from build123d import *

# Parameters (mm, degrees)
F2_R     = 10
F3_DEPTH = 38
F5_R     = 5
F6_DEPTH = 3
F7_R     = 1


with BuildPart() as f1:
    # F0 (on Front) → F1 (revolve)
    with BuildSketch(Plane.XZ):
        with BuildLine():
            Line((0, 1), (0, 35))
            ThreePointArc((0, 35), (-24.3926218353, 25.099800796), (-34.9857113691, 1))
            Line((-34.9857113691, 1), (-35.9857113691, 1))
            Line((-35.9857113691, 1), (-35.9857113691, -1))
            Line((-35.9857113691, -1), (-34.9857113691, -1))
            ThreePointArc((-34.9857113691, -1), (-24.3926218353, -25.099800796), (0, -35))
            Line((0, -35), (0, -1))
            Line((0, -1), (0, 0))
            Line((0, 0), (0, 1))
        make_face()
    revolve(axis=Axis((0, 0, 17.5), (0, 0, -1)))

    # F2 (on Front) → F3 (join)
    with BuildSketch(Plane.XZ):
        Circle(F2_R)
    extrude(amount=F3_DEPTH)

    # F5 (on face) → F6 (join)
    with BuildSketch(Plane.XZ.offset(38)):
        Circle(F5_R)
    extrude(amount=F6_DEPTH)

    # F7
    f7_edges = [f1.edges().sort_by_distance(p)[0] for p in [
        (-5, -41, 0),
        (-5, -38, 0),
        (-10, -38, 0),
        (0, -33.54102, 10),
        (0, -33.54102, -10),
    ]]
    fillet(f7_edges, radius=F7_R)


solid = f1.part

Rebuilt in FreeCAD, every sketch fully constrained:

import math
import FreeCAD as App
import Part
import Sketcher
from FreeCAD import Vector
Q = App.Units.Quantity


def edges_at(feature, points):
    """Names of the edges that pass closest to the given points."""
    edges = feature.Shape.Edges
    near = lambda p: min(range(len(edges)), key=lambda i: edges[i].distToShape(Part.Vertex(*p))[0])
    return sorted({f"Edge{near(p) + 1}" for p in points})

doc = App.newDocument("Part")
body = doc.addObject("PartDesign::Body", "Body")

sketch1 = doc.addObject("Sketcher::SketchObject", "Sketch")
body.addObject(sketch1)
sketch1.AttachmentSupport = (doc.XZ_Plane, [""])
sketch1.MapMode = "FlatFace"
sketch1.addGeometry([
    Part.ArcOfCircle(Part.Circle(Vector(0, 0, 0), Vector(0, 0, 1), 35), math.radians(90), math.radians(178)),
    Part.LineSegment(Vector(-35, 1, 0), Vector(-36, 1, 0)),
    Part.LineSegment(Vector(-36, 1, 0), Vector(-36, -1, 0)),
    Part.LineSegment(Vector(-36, -1, 0), Vector(-35, -1, 0)),
    Part.ArcOfCircle(Part.Circle(Vector(0, 0, 0), Vector(0, 0, 1), 35), math.radians(-178), math.radians(-90)),
    Part.LineSegment(Vector(0, -35, 0), Vector(0, 35, 0)),
], False)
sketch1.addConstraint([
    Sketcher.Constraint("Coincident", 0, 2, 1, 1),
    Sketcher.Constraint("Coincident", 1, 2, 2, 1),
    Sketcher.Constraint("Coincident", 2, 2, 3, 1),
    Sketcher.Constraint("Coincident", 3, 2, 4, 1),
    Sketcher.Constraint("Coincident", 4, 2, 5, 1),
    Sketcher.Constraint("Coincident", 5, 2, 0, 1),
    Sketcher.Constraint("Horizontal", 1),
    Sketcher.Constraint("Vertical", 2),
    Sketcher.Constraint("Horizontal", 3),
    Sketcher.Constraint("Vertical", 5),
    Sketcher.Constraint("Coincident", 0, 3, -1, 1),
    Sketcher.Constraint("Coincident", 4, 3, -1, 1),
    Sketcher.Constraint("Equal", 0, 4),
    Sketcher.Constraint("PointOnObject", 4, 2, -2),
    Sketcher.Constraint("Vertical", 0, 2, 3, 2),
    Sketcher.Constraint("Radius", 0, Q("35 mm")),
    Sketcher.Constraint("DistanceX", 1, 2, 1, 1, Q("1 mm")),
    Sketcher.Constraint("DistanceY", 2, 2, 2, 1, Q("2 mm")),
])
revolution = doc.addObject("PartDesign::Revolution", "Revolution")
body.addObject(revolution)
revolution.Profile = sketch1
revolution.ReferenceAxis = (sketch1, ["V_Axis"])
revolution.Angle = 360

sketch2 = doc.addObject("Sketcher::SketchObject", "Sketch001")
body.addObject(sketch2)
sketch2.AttachmentSupport = (doc.XZ_Plane, [""])
sketch2.MapMode = "FlatFace"
sketch2.addGeometry(Part.Circle(Vector(0, 0, 0), Vector(0, 0, 1), 10), False)
sketch2.addConstraint([
    Sketcher.Constraint("Coincident", 0, 3, -1, 1),
    Sketcher.Constraint("Diameter", 0, Q("20 mm")),
])
pad1 = doc.addObject("PartDesign::Pad", "Pad")
body.addObject(pad1)
pad1.Profile = sketch2
pad1.Length = 38

sketch3 = doc.addObject("Sketcher::SketchObject", "Sketch002")
body.addObject(sketch3)
sketch3.AttachmentSupport = (doc.XZ_Plane, [""])
sketch3.MapMode = "FlatFace"
sketch3.AttachmentOffset = App.Placement(Vector(0, 0, 38), App.Rotation())
sketch3.addGeometry(Part.Circle(Vector(0, 0, 0), Vector(0, 0, 1), 5), False)
sketch3.addConstraint([
    Sketcher.Constraint("Coincident", 0, 3, -1, 1),
    Sketcher.Constraint("Diameter", 0, Q("10 mm")),
])
pad2 = doc.addObject("PartDesign::Pad", "Pad001")
body.addObject(pad2)
pad2.Profile = sketch3
pad2.Length = 3
doc.recompute()

fillet = doc.addObject("PartDesign::Fillet", "Fillet")
body.addObject(fillet)
fillet.Base = (pad2, edges_at(pad2, [
    (-5, -41, 0),
    (-5, -38, 0),
    (-10, -38, 0),
    (0, -33.541, 10),
    (0, -33.541, -10),
]))
fillet.Radius = 1

doc.recompute()
